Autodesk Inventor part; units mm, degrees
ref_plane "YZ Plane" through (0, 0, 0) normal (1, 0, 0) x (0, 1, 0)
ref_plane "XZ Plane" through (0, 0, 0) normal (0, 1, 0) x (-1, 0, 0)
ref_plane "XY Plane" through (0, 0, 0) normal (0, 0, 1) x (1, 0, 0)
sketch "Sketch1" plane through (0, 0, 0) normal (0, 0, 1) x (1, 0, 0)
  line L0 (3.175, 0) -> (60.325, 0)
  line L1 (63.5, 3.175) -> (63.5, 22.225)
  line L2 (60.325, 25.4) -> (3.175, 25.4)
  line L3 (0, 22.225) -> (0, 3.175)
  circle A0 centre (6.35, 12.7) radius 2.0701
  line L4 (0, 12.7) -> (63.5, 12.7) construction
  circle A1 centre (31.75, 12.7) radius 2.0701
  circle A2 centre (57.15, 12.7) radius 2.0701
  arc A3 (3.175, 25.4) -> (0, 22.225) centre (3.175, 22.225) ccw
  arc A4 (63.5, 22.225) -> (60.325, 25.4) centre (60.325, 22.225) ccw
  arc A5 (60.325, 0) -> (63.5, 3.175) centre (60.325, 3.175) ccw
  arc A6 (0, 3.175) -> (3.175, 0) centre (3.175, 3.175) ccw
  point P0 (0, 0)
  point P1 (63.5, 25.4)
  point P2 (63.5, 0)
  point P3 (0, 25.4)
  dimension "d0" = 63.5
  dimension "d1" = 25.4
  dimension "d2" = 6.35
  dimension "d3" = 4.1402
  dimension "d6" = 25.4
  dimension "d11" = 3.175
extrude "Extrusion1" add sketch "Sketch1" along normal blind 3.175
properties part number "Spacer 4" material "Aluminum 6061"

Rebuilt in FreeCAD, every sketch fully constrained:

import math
import FreeCAD as App
import Part
import Sketcher

V = App.Vector
Q = App.Units.Quantity

doc = App.newDocument("Part")
body = doc.addObject("PartDesign::Body", "Body")

sketch1 = doc.addObject("Sketcher::SketchObject", "Sketch")
body.addObject(sketch1)
sketch1.AttachmentSupport = (doc.XY_Plane, [""])
sketch1.MapMode = "FlatFace"
sketch1.addGeometry([
    Part.ArcOfCircle(Part.Circle(V(3.2, 3.2, 0), V(0, 0, 1), 3.2), math.radians(180), math.radians(270)),
    Part.LineSegment(V(3.2, 0, 0), V(60.3, 0, 0)),
    Part.ArcOfCircle(Part.Circle(V(60.3, 3.2, 0), V(0, 0, 1), 3.2), math.radians(-90), math.radians(0)),
    Part.LineSegment(V(63.5, 3.2, 0), V(63.5, 22.2, 0)),
    Part.ArcOfCircle(Part.Circle(V(60.3, 22.2, 0), V(0, 0, 1), 3.2), math.radians(0), math.radians(90)),
    Part.LineSegment(V(60.3, 25.4, 0), V(3.2, 25.4, 0)),
    Part.ArcOfCircle(Part.Circle(V(3.2, 22.2, 0), V(0, 0, 1), 3.2), math.radians(90), math.radians(180)),
    Part.LineSegment(V(0, 22.2, 0), V(0, 3.2, 0)),
    Part.Circle(V(6.3, 12.7, 0), V(0, 0, 1), 2.1),
    Part.Circle(V(31.8, 12.7, 0), V(0, 0, 1), 2.1),
    Part.Circle(V(57.1, 12.7, 0), V(0, 0, 1), 2.1),
], False)
sketch1.addConstraint([
    Sketcher.Constraint("Tangent", 0, 2, 1, 1),
    Sketcher.Constraint("Tangent", 1, 2, 2, 1),
    Sketcher.Constraint("Tangent", 2, 2, 3, 1),
    Sketcher.Constraint("Tangent", 3, 2, 4, 1),
    Sketcher.Constraint("Tangent", 4, 2, 5, 1),
    Sketcher.Constraint("Tangent", 5, 2, 6, 1),
    Sketcher.Constraint("Tangent", 6, 2, 7, 1),
    Sketcher.Constraint("Tangent", 7, 2, 0, 1),
    Sketcher.Constraint("Horizontal", 1),
    Sketcher.Constraint("Vertical", 3),
    Sketcher.Constraint("Horizontal", 5),
    Sketcher.Constraint("Vertical", 7),
    Sketcher.Constraint("Equal", 0, 2),
    Sketcher.Constraint("Equal", 2, 4),
    Sketcher.Constraint("Equal", 4, 6),
    Sketcher.Constraint("Equal", 8, 9),
    Sketcher.Constraint("Equal", 9, 10),
    Sketcher.Constraint("PointOnObject", 0, 2, -1),
    Sketcher.Constraint("PointOnObject", 6, 2, -2),
    Sketcher.Constraint("Horizontal", 8, 3, 9, 3),
    Sketcher.Constraint("Horizontal", 9, 3, 10, 3),
    Sketcher.Constraint("Diameter", 8, Q("0.163 in")),
    Sketcher.Constraint("DistanceY", -1, 1, 4, 2, Q("1 in")),
    Sketcher.Constraint("Radius", 0, Q("0.125 in")),
    Sketcher.Constraint("DistanceX", 8, 3, 9, 3, Q("1 in")),
    Sketcher.Constraint("DistanceX", 9, 3, 10, 3, Q("1 in")),
    Sketcher.Constraint("DistanceX", -1, 1, 2, 2, Q("2.5 in")),
    Sketcher.Constraint("DistanceX", -1, 1, 8, 3, Q("0.25 in")),
    Sketcher.Constraint("DistanceY", -1, 1, 8, 3, Q("0.5 in")),
])
pad1 = doc.addObject("PartDesign::Pad", "Pad")
body.addObject(pad1)
pad1.Profile = sketch1
pad1.Length = Q("0.125 in")

doc.recompute()
